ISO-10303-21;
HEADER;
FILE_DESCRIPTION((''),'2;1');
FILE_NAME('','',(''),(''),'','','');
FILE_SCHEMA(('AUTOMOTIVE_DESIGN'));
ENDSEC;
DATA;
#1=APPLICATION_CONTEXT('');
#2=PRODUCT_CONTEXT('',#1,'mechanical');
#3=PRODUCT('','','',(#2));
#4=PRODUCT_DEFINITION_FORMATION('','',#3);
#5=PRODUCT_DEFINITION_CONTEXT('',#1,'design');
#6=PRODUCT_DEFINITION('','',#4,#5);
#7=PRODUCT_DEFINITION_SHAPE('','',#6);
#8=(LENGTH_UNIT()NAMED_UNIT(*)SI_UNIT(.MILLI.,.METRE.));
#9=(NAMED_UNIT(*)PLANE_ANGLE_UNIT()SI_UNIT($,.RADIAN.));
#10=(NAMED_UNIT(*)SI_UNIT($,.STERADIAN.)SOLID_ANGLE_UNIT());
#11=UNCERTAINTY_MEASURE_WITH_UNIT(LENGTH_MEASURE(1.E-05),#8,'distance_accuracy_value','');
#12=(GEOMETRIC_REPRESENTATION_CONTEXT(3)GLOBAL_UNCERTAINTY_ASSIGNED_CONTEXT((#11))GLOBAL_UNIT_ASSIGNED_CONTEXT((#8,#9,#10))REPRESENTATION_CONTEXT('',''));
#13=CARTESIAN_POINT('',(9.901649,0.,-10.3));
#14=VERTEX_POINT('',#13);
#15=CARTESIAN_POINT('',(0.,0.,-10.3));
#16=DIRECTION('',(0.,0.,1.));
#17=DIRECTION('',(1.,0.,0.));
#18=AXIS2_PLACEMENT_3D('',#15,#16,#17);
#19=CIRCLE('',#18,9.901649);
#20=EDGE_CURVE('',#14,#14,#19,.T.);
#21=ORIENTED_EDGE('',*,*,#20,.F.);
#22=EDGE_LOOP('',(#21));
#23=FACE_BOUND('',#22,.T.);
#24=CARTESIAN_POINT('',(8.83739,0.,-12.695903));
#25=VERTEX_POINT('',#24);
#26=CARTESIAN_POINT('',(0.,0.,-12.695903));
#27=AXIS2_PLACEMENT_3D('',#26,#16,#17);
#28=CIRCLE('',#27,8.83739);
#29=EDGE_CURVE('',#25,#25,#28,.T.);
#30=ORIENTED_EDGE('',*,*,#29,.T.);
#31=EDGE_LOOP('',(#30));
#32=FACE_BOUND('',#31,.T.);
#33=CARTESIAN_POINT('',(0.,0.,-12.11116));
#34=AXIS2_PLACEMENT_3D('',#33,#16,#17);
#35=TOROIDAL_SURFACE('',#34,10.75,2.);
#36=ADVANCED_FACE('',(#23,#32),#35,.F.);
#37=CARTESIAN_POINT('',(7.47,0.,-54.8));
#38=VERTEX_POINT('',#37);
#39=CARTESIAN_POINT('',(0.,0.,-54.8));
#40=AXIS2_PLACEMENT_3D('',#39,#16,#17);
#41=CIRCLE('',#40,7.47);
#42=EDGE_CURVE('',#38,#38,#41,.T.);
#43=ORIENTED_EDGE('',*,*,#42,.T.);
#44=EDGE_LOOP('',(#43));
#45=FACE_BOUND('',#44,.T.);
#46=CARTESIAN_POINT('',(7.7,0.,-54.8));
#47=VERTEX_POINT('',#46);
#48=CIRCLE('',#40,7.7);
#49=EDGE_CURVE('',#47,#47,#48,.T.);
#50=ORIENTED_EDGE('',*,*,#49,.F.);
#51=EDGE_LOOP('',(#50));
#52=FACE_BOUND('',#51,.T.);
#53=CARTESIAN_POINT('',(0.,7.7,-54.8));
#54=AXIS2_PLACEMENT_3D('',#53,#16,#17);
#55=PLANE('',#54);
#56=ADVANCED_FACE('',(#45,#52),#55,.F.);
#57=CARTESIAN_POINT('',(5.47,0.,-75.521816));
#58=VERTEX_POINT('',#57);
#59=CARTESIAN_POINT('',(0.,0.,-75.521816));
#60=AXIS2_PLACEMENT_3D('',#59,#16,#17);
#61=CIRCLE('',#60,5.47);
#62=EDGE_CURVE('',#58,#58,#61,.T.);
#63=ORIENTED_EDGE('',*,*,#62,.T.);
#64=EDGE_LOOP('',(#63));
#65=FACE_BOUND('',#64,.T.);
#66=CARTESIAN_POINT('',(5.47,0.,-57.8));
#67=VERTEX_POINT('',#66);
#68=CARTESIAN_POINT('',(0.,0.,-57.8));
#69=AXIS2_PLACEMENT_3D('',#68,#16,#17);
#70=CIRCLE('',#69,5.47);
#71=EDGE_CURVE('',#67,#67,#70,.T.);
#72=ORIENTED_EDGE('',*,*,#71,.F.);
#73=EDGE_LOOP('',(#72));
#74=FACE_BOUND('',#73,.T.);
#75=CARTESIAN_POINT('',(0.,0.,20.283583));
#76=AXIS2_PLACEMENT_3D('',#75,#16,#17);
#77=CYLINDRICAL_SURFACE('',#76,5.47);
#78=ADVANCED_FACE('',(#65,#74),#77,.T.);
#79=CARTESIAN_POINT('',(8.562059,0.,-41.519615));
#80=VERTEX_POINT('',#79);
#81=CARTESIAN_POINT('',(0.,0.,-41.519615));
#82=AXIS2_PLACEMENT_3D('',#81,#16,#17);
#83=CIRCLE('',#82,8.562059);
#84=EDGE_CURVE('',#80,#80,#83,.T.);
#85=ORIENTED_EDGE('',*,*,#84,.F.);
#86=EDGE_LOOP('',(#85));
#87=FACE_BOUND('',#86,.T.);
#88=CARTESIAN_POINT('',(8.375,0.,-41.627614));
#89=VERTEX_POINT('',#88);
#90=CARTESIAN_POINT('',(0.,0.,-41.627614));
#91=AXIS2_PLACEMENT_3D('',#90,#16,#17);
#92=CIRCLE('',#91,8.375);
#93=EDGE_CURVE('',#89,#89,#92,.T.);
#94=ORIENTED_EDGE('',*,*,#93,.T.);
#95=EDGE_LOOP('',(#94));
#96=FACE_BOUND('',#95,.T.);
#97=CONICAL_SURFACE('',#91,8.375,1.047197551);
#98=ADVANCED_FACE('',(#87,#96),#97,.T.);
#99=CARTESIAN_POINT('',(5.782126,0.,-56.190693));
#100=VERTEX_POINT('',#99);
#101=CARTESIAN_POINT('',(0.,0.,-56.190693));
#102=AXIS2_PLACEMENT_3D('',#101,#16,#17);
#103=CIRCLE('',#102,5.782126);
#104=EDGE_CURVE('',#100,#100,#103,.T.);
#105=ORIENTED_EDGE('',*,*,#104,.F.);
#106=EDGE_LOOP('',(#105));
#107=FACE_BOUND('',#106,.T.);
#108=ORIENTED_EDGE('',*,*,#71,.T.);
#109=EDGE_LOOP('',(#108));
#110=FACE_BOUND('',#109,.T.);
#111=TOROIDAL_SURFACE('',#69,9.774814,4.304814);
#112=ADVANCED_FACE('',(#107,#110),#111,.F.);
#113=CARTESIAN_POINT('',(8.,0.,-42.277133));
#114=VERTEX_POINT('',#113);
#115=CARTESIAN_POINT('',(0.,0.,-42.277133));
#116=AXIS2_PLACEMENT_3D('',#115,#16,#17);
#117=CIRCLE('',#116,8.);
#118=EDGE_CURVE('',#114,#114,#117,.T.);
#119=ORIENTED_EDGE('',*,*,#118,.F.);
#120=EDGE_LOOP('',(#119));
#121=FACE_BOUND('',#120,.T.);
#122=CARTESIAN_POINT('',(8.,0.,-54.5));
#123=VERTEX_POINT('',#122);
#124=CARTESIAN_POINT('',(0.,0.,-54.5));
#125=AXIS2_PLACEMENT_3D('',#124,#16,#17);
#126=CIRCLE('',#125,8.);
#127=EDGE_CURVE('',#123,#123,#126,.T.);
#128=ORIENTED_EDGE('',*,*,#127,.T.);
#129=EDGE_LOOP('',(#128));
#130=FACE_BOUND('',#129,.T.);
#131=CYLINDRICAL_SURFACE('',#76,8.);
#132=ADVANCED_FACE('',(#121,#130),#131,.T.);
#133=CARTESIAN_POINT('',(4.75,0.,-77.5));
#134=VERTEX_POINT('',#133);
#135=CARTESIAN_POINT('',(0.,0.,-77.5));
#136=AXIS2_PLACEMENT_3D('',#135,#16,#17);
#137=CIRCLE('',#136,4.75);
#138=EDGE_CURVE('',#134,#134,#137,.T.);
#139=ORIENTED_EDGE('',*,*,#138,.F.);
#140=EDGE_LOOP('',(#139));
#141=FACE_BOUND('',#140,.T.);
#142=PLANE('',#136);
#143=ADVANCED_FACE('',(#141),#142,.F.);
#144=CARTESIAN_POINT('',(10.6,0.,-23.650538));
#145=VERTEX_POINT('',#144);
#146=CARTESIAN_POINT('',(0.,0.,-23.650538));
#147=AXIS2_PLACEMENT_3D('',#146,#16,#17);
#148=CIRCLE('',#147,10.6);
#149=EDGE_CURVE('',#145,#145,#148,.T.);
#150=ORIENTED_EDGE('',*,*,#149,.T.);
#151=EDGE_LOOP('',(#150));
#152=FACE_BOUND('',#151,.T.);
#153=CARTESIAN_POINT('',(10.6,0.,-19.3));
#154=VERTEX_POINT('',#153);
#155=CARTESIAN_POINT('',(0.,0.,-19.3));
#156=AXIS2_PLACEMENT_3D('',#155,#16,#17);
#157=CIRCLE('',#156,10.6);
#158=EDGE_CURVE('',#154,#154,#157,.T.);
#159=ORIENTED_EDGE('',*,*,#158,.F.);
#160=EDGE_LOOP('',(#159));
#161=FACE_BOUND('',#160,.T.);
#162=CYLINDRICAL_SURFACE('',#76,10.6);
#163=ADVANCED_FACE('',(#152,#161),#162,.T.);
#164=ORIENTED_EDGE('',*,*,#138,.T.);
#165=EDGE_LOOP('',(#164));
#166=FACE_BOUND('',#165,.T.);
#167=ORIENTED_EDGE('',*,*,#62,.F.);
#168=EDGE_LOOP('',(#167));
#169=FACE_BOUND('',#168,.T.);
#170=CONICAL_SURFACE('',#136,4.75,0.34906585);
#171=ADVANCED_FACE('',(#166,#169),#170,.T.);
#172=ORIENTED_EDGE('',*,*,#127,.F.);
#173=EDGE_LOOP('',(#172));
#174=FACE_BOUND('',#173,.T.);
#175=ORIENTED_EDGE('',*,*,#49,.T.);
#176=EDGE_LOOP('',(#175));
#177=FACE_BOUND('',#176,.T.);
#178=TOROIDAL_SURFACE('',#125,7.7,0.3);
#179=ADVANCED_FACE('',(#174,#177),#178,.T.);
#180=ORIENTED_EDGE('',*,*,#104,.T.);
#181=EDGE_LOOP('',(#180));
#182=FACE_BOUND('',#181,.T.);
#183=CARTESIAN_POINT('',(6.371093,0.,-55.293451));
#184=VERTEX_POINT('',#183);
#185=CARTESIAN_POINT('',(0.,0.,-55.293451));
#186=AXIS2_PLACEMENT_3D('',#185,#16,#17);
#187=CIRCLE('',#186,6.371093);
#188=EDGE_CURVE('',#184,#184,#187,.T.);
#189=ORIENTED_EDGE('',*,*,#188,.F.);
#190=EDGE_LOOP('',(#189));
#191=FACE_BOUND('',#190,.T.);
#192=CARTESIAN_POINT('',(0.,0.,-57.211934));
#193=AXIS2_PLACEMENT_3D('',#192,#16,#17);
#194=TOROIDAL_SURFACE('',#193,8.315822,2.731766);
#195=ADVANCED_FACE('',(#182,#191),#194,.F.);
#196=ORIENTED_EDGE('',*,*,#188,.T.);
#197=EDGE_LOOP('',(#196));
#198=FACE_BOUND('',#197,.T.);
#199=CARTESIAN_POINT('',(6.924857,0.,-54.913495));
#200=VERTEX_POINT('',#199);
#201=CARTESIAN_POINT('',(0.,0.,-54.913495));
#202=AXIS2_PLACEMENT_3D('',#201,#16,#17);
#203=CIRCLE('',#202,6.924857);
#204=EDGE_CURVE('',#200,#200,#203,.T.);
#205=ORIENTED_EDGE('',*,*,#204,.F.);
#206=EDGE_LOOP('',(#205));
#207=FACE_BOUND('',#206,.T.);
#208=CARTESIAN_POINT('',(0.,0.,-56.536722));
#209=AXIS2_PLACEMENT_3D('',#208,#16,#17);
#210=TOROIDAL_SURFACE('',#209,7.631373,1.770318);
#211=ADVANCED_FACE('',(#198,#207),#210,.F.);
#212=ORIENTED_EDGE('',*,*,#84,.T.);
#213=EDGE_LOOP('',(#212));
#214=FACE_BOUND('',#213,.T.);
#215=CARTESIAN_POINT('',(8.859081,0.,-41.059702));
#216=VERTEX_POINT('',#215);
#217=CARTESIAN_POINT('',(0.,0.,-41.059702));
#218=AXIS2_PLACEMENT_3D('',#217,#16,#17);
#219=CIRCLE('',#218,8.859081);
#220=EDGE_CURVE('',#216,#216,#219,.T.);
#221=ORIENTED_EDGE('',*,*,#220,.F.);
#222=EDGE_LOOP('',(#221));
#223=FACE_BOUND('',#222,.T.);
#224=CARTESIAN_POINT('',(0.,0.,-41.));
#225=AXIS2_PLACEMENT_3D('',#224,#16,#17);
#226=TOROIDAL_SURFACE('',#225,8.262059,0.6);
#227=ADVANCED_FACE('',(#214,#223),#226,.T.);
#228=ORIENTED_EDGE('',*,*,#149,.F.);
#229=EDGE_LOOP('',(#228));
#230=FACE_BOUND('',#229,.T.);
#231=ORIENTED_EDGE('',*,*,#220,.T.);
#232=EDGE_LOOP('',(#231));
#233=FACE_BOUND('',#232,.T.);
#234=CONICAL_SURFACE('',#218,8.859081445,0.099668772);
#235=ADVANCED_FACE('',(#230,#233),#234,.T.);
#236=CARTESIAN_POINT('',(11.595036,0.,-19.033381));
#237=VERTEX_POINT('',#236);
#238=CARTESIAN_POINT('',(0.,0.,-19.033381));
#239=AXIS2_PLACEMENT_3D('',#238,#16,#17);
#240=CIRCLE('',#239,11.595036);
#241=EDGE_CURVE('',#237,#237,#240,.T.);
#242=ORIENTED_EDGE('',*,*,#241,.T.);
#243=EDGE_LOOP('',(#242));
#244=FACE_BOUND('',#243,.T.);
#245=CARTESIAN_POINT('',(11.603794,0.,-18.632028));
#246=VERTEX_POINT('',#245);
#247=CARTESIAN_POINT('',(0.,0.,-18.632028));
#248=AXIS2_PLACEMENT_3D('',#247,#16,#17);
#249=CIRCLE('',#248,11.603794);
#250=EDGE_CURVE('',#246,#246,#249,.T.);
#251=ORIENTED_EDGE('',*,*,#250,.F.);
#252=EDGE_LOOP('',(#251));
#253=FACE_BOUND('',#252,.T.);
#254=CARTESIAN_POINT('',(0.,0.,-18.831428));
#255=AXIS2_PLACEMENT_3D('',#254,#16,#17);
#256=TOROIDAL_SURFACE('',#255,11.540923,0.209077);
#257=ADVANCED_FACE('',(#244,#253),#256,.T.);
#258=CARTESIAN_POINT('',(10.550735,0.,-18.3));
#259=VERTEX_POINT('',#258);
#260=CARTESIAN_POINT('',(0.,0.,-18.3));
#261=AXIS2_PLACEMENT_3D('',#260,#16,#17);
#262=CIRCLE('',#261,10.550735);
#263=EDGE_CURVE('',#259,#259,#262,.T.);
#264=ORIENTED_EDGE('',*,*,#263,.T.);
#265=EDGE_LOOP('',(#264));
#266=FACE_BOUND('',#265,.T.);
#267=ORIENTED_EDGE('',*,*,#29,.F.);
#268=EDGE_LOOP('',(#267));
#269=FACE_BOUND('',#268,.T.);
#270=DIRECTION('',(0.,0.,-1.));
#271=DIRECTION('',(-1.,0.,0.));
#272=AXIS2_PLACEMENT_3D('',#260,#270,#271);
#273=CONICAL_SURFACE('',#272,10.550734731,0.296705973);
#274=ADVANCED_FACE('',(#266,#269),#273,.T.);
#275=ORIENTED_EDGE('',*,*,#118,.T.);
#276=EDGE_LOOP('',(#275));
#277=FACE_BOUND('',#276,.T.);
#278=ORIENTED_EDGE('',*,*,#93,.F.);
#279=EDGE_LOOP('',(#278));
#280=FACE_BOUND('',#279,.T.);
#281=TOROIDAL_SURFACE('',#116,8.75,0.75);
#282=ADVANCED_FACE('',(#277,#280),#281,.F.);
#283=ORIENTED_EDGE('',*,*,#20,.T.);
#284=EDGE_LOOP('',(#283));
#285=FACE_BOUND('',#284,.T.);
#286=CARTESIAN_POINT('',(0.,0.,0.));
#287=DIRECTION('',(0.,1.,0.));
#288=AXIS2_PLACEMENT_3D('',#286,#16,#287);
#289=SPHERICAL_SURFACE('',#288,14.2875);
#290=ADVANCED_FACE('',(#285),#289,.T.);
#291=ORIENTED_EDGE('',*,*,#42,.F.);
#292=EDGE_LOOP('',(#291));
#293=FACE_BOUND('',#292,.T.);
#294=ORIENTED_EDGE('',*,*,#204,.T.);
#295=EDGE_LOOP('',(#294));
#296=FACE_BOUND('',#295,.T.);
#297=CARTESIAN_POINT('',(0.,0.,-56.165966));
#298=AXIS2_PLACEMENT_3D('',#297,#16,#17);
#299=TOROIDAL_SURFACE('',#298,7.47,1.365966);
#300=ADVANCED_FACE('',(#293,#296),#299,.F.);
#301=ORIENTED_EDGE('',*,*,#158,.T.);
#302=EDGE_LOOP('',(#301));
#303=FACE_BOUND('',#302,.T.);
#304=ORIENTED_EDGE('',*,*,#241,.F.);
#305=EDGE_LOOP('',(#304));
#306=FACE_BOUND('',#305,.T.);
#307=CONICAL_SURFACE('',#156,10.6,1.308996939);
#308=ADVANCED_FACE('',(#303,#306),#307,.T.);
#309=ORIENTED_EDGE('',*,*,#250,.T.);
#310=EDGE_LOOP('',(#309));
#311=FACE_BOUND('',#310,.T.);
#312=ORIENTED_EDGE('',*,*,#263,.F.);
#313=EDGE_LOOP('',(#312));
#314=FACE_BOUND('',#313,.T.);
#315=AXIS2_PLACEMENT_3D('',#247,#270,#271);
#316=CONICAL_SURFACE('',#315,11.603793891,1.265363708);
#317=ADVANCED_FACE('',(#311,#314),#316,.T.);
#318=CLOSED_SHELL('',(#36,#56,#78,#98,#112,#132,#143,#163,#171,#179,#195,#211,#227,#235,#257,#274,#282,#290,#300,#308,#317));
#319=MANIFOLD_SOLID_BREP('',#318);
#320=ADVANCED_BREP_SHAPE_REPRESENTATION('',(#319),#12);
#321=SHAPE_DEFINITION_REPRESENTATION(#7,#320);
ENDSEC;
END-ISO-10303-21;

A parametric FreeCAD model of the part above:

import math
import FreeCAD as App
import Part
import Sketcher
from FreeCAD import Vector
Q = App.Units.Quantity

doc = App.newDocument("Part")
body = doc.addObject("PartDesign::Body", "Body")

# Sketch on YZ plane
sketch1 = body.newObject("Sketcher::SketchObject", "Sketch")
sketch1.AttachmentSupport = (doc.getObject("YZ_Plane"), [""])
sketch1.MapMode = "FlatFace"
sketch1.addGeometry(Part.LineSegment(Vector(10.6, -23.65, 0), Vector(10.6, -19.3, 0)), False)
sketch1.addGeometry(Part.LineSegment(Vector(10.6, -19.3, 0), Vector(11.6, -19.03, 0)), False)
sketch1.addGeometry(Part.ArcOfCircle(Part.Circle(Vector(11.54, -18.83, 0), Vector(0, 0, 1), 0.21), math.radians(-75), math.radians(72)), False)
sketch1.addGeometry(Part.LineSegment(Vector(11.6, -18.63, 0), Vector(10.55, -18.3, 0)), False)
sketch1.addGeometry(Part.LineSegment(Vector(10.55, -18.3, 0), Vector(8.84, -12.7, 0)), False)
sketch1.addGeometry(Part.ArcOfCircle(Part.Circle(Vector(10.75, -12.11, 0), Vector(0, 0, 1), 2), math.radians(115), math.radians(197)), False)
sketch1.addGeometry(Part.ArcOfCircle(Part.Circle(Vector(0, 0, 0), Vector(0, 0, 1), 14.29), math.radians(-46), math.radians(90)), False)
sketch1.addGeometry(Part.LineSegment(Vector(0, 14.29, 0), Vector(0, -77.5, 0)), False)
sketch1.addGeometry(Part.LineSegment(Vector(0, -77.5, 0), Vector(4.75, -77.5, 0)), False)
sketch1.addGeometry(Part.LineSegment(Vector(4.75, -77.5, 0), Vector(5.47, -75.52, 0)), False)
sketch1.addGeometry(Part.LineSegment(Vector(5.47, -75.52, 0), Vector(5.47, -57.8, 0)), False)
sketch1.addGeometry(Part.ArcOfCircle(Part.Circle(Vector(9.77, -57.8, 0), Vector(0, 0, 1), 4.3), math.radians(158), math.radians(180)), False)
sketch1.addGeometry(Part.ArcOfCircle(Part.Circle(Vector(8.32, -57.21, 0), Vector(0, 0, 1), 2.73), math.radians(135), math.radians(158)), False)
sketch1.addGeometry(Part.ArcOfCircle(Part.Circle(Vector(7.63, -56.54, 0), Vector(0, 0, 1), 1.77), math.radians(114), math.radians(135)), False)
sketch1.addGeometry(Part.ArcOfCircle(Part.Circle(Vector(7.47, -56.17, 0), Vector(0, 0, 1), 1.37), math.radians(90), math.radians(114)), False)
sketch1.addGeometry(Part.LineSegment(Vector(7.47, -54.8, 0), Vector(7.7, -54.8, 0)), False)
sketch1.addGeometry(Part.ArcOfCircle(Part.Circle(Vector(7.7, -54.5, 0), Vector(0, 0, 1), 0.3), math.radians(-90), math.radians(0)), False)
sketch1.addGeometry(Part.LineSegment(Vector(8, -54.5, 0), Vector(8, -42.28, 0)), False)
sketch1.addGeometry(Part.ArcOfCircle(Part.Circle(Vector(8.75, -42.28, 0), Vector(0, 0, 1), 0.75), math.radians(120), math.radians(180)), False)
sketch1.addGeometry(Part.LineSegment(Vector(8.38, -41.63, 0), Vector(8.56, -41.52, 0)), False)
sketch1.addGeometry(Part.ArcOfCircle(Part.Circle(Vector(8.26, -41, 0), Vector(0, 0, 1), 0.6), math.radians(-60), math.radians(-6)), False)
sketch1.addGeometry(Part.LineSegment(Vector(8.86, -41.06, 0), Vector(10.6, -23.65, 0)), False)
sketch1.addConstraint(Sketcher.Constraint("Coincident", 0, 2, 1, 1))
sketch1.addConstraint(Sketcher.Constraint("Tangent", 1, 2, 2, 1))
sketch1.addConstraint(Sketcher.Constraint("Tangent", 2, 2, 3, 1))
sketch1.addConstraint(Sketcher.Constraint("Coincident", 3, 2, 4, 1))
sketch1.addConstraint(Sketcher.Constraint("Tangent", 4, 2, 5, 2))
sketch1.addConstraint(Sketcher.Constraint("Coincident", 5, 1, 6, 1))
sketch1.addConstraint(Sketcher.Constraint("Coincident", 6, 2, 7, 1))
sketch1.addConstraint(Sketcher.Constraint("Coincident", 7, 2, 8, 1))
sketch1.addConstraint(Sketcher.Constraint("Coincident", 8, 2, 9, 1))
sketch1.addConstraint(Sketcher.Constraint("Coincident", 9, 2, 10, 1))
sketch1.addConstraint(Sketcher.Constraint("Tangent", 10, 2, 11, 2))
sketch1.addConstraint(Sketcher.Constraint("Tangent", 11, 1, 12, 2))
sketch1.addConstraint(Sketcher.Constraint("Tangent", 12, 1, 13, 2))
sketch1.addConstraint(Sketcher.Constraint("Tangent", 13, 1, 14, 2))
sketch1.addConstraint(Sketcher.Constraint("Tangent", 14, 1, 15, 1))
sketch1.addConstraint(Sketcher.Constraint("Tangent", 15, 2, 16, 1))
sketch1.addConstraint(Sketcher.Constraint("Tangent", 16, 2, 17, 1))
sketch1.addConstraint(Sketcher.Constraint("Tangent", 17, 2, 18, 2))
sketch1.addConstraint(Sketcher.Constraint("Tangent", 18, 1, 19, 1))
sketch1.addConstraint(Sketcher.Constraint("Tangent", 19, 2, 20, 1))
sketch1.addConstraint(Sketcher.Constraint("Tangent", 20, 2, 21, 1))
sketch1.addConstraint(Sketcher.Constraint("Coincident", 21, 2, 0, 1))
sketch1.addConstraint(Sketcher.Constraint("Vertical", 0))
sketch1.addConstraint(Sketcher.Constraint("Vertical", 7))
sketch1.addConstraint(Sketcher.Constraint("Horizontal", 8))
sketch1.addConstraint(Sketcher.Constraint("Vertical", 10))
sketch1.addConstraint(Sketcher.Constraint("Horizontal", 15))
sketch1.addConstraint(Sketcher.Constraint("Vertical", 17))
sketch1.addConstraint(Sketcher.Constraint("Coincident", 6, 3, -1, 1))
sketch1.addConstraint(Sketcher.Constraint("PointOnObject", 6, 2, -2))
sketch1.addConstraint(Sketcher.Constraint("Radius", 5, 2.0))
sketch1.addConstraint(Sketcher.Constraint("Radius", 16, 0.3))
sketch1.addConstraint(Sketcher.Constraint("Radius", 20, 0.6))
sketch1.addConstraint(Sketcher.Constraint("Angle", 1, Q("15 deg")))
sketch1.addConstraint(Sketcher.Constraint("Angle", 4, Q("107 deg")))
sketch1.addConstraint(Sketcher.Constraint("Angle", 9, Q("70 deg")))
sketch1.addConstraint(Sketcher.Constraint("Angle", 19, Q("30 deg")))
sketch1.addConstraint(Sketcher.Constraint("Radius", 18, 0.75))
sketch1.addConstraint(Sketcher.Constraint("DistanceY", 20, 3, -1, 1, 41.0))
sketch1.addConstraint(Sketcher.Constraint("DistanceX", -1, 1, 16, 2, 8.0))
sketch1.addConstraint(Sketcher.Constraint("Angle", 3, Q("162.5 deg")))
sketch1.addConstraint(Sketcher.Constraint("DistanceY", 0, 2, 3, 2, 1.0))
sketch1.addConstraint(Sketcher.Constraint("DistanceY", 3, 2, 5, 1, 8.0))
sketch1.addConstraint(Sketcher.Constraint("DistanceY", 7, 2, 16, 3, 23.0))
sketch1.addConstraint(Sketcher.Constraint("DistanceX", 10, 2, 14, 3, 2.0))
sketch1.addConstraint(Sketcher.Constraint("DistanceX", 8, 1, 8, 2, 4.75))
sketch1.addConstraint(Sketcher.Constraint("DistanceX", 15, 1, 15, 2, 0.23))
sketch1.addConstraint(Sketcher.Constraint("DistanceY", 11, 3, -1, 1, 57.8))
sketch1.addConstraint(Sketcher.Constraint("DistanceY", 16, 3, -1, 1, 54.5))
sketch1.addConstraint(Sketcher.Constraint("DistanceX", -1, 1, 0, 2, 10.6))
sketch1.addConstraint(Sketcher.Constraint("DistanceY", 0, 2, -1, 1, 19.3))
sketch1.addConstraint(Sketcher.Constraint("Radius", 6, 14.2875))
sketch1.addConstraint(Sketcher.Constraint("DistanceX", -1, 1, 5, 3, 10.75))
sketch1.addConstraint(Sketcher.Constraint("Radius", 13, 1.770318))
sketch1.addConstraint(Sketcher.Constraint("Radius", 2, 0.209077))
sketch1.addConstraint(Sketcher.Constraint("Radius", 11, 4.304814))
sketch1.addConstraint(Sketcher.Constraint("Radius", 12, 2.731766))
sketch1.addConstraint(Sketcher.Constraint("Radius", 14, 1.365966))
sketch1.addConstraint(Sketcher.Constraint("DistanceY", 18, 1, 19, 2, 0.107999))
sketch1.addConstraint(Sketcher.Constraint("DistanceX", 12, 3, 2, 3, 3.225101))
sketch1.addConstraint(Sketcher.Constraint("DistanceY", 0, 1, 0, 2, 4.350538))
revolution = body.newObject("PartDesign::Revolution", "Revolution")
revolution.Profile = sketch1
revolution.ReferenceAxis = (sketch1, ["V_Axis"])
revolution.Angle = 360

doc.recompute()
